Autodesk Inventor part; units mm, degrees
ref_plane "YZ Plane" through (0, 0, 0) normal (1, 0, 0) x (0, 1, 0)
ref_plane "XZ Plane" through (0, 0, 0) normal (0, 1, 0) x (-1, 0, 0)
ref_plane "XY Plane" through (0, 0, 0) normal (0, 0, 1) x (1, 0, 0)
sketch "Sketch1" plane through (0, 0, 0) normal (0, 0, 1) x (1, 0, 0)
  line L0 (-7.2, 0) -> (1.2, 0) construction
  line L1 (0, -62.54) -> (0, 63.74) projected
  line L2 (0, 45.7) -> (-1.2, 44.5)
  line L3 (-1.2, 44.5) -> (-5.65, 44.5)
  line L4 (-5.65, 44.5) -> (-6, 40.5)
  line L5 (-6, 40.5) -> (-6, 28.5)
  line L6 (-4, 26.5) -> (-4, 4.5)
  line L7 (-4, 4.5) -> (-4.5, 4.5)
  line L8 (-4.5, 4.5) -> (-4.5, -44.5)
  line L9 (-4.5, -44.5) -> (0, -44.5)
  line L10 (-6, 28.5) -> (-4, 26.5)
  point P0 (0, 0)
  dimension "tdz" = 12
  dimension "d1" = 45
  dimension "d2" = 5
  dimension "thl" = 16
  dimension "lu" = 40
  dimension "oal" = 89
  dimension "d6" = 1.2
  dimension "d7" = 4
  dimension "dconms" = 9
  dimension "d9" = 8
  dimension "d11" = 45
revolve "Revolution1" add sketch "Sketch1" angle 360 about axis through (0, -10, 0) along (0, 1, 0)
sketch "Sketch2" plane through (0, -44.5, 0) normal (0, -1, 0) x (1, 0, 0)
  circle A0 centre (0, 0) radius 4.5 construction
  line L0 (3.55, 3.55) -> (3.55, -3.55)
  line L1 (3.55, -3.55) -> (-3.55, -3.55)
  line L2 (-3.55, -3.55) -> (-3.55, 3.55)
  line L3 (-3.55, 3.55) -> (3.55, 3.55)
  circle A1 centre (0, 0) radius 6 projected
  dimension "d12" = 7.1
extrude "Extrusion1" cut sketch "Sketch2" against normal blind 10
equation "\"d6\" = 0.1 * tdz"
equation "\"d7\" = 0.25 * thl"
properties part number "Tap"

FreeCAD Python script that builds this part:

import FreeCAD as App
import Part
import Sketcher

V = App.Vector
Q = App.Units.Quantity


def add_polygon(sketch, points):
    """Adds a closed chain of lines whose ends are joined by coincident constraints."""
    first, n = sketch.GeometryCount, len(points)
    for a, b in zip(points, points[1:] + points[:1]):
        sketch.addGeometry(Part.LineSegment(App.Vector(*a, 0), App.Vector(*b, 0)), False)
    for i in range(n):
        sketch.addConstraint(Sketcher.Constraint("Coincident", first + i, 2, first + (i + 1) % n, 1))

doc = App.newDocument("Part")
body = doc.addObject("PartDesign::Body", "Body")

sketch1 = doc.addObject("Sketcher::SketchObject", "Sketch")
body.addObject(sketch1)
sketch1.AttachmentSupport = (doc.XY_Plane, [""])
sketch1.MapMode = "FlatFace"
add_polygon(sketch1, [(-4.5, -44.5), (0, -44.5), (0, 45.7), (-1.2, 44.5), (-5.7, 44.5), (-6, 40.5), (-6, 28.5), (-4, 26.5), (-4, 4.5), (-4.5, 4.5)])
sketch1.addConstraint([
    Sketcher.Constraint("Horizontal", 0),
    Sketcher.Constraint("Vertical", 1),
    Sketcher.Constraint("Horizontal", 3),
    Sketcher.Constraint("Vertical", 5),
    Sketcher.Constraint("Vertical", 7),
    Sketcher.Constraint("Horizontal", 8),
    Sketcher.Constraint("Vertical", 9),
    Sketcher.Constraint("PointOnObject", 0, 2, -2),
    Sketcher.Constraint("Perpendicular", 2, 6),
    Sketcher.Constraint("DistanceY", 5, 2, 5, 1, Q("12 mm")),
    Sketcher.Constraint("Angle", 6, Q("-45 deg")),
    Sketcher.Constraint("DistanceX", 6, 2, -1, 1, Q("4 mm")),
    Sketcher.Constraint("DistanceY", 0, 2, 2, 2, Q("89 mm")),
    Sketcher.Constraint("DistanceY", 4, 2, 3, 2, Q("4 mm")),
    Sketcher.Constraint("DistanceY", 7, 2, 3, 2, Q("40 mm")),
    Sketcher.Constraint("DistanceX", 2, 2, -1, 1, Q("1.2 mm")),
    Sketcher.Constraint("DistanceY", 7, 2, 7, 1, Q("22 mm")),
    Sketcher.Constraint("Angle", 4, Q("-95.0006 deg")),
    Sketcher.Constraint("DistanceX", 0, 1, 0, 2, Q("4.5 mm")),
    Sketcher.Constraint("DistanceY", 0, 2, -1, 1, Q("44.5 mm")),
])
revolution = doc.addObject("PartDesign::Revolution", "Revolution")
body.addObject(revolution)
revolution.Profile = sketch1
revolution.ReferenceAxis = (sketch1, ["V_Axis"])
revolution.Angle = 360

sketch2 = doc.addObject("Sketcher::SketchObject", "Sketch001")
body.addObject(sketch2)
sketch2.AttachmentSupport = (doc.XZ_Plane, [""])
sketch2.MapMode = "FlatFace"
sketch2.AttachmentOffset = App.Placement(V(0, 0, 44.5), App.Rotation())
sketch2.addGeometry(Part.Circle(V(0, 0, 0), V(0, 0, 1), 6), False)
add_polygon(sketch2, [(-4, 4), (4, 4), (4, -4), (-4, -4)])
sketch2.addConstraint([
    Sketcher.Constraint("Horizontal", 1),
    Sketcher.Constraint("Vertical", 2),
    Sketcher.Constraint("Horizontal", 3),
    Sketcher.Constraint("Vertical", 4),
    Sketcher.Constraint("Coincident", 0, 3, -1, 1),
    Sketcher.Constraint("Symmetric", 1, 2, 3, 2, -1, 1),
    Sketcher.Constraint("Equal", 3, 2),
    Sketcher.Constraint("Diameter", 0, Q("12 mm")),
    Sketcher.Constraint("DistanceX", 1, 1, 1, 2, Q("7.1 mm")),
])
pocket1 = doc.addObject("PartDesign::Pocket", "Pocket")
body.addObject(pocket1)
pocket1.Profile = sketch2
pocket1.Length = 10

doc.recompute()
